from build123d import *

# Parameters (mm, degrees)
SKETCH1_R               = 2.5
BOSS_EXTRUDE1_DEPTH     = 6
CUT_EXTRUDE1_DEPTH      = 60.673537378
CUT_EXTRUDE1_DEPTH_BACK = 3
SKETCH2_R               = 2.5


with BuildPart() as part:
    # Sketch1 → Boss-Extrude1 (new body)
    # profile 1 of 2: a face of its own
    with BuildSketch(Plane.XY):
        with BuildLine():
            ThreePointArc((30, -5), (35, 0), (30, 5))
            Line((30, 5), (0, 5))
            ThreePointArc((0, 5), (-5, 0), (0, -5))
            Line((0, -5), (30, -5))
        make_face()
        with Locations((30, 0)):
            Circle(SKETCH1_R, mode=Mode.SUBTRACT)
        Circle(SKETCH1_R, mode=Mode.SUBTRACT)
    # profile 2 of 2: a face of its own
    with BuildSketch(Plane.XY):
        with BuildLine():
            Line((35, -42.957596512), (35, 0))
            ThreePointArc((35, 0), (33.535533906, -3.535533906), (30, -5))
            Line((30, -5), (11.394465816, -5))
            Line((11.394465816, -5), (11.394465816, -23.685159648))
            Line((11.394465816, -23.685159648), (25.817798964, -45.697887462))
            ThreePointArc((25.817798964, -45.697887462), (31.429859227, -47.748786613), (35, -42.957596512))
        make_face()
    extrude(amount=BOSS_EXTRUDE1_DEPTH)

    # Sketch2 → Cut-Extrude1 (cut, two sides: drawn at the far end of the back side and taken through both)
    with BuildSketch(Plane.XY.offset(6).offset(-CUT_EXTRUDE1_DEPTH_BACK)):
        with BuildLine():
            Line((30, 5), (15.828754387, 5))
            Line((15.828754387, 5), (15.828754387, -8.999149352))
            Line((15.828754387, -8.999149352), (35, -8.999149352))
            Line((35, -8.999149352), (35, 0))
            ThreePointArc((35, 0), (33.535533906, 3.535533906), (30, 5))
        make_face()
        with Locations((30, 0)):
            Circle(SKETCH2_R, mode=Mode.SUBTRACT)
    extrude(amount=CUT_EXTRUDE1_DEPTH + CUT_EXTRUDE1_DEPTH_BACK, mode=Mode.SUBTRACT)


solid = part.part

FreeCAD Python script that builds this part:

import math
import FreeCAD as App
import Part
import Sketcher

doc = App.newDocument("Part")
body = doc.addObject("PartDesign::Body", "Body")

sketch1 = body.newObject("Sketcher::SketchObject", "Sketch")
sketch1.AttachmentSupport = (doc.getObject("XY_Plane"), [""])
sketch1.MapMode = "FlatFace"
sketch1.addGeometry([
    Part.ArcOfCircle(Part.Circle(App.Vector(30, 0, 0), App.Vector(0, 0, 1), 5), math.radians(0), math.radians(90)),
    Part.LineSegment(App.Vector(30, 5, 0), App.Vector(0, 5, 0)),
    Part.ArcOfCircle(Part.Circle(App.Vector(0, 0, 0), App.Vector(0, 0, 1), 5), math.radians(90), math.radians(270)),
    Part.LineSegment(App.Vector(0, -5, 0), App.Vector(11.394466, -5, 0)),
    Part.LineSegment(App.Vector(11.394466, -5, 0), App.Vector(11.394466, -23.68516, 0)),
    Part.LineSegment(App.Vector(11.394466, -23.68516, 0), App.Vector(25.817799, -45.697887, 0)),
    Part.ArcOfCircle(Part.Circle(App.Vector(30, -42.957597, 0), App.Vector(0, 0, 1), 5), math.radians(-146.766102), math.radians(0)),
    Part.LineSegment(App.Vector(35, -42.957597, 0), App.Vector(35, 0, 0)),
    Part.Circle(App.Vector(0, 0, 0), App.Vector(0, 0, 1), 2.5),
    Part.Circle(App.Vector(30, 0, 0), App.Vector(0, 0, 1), 2.5),
], False)
sketch1.addConstraint([
    Sketcher.Constraint("Tangent", 0, 2, 1, 1),
    Sketcher.Constraint("Tangent", 1, 2, 2, 1),
    Sketcher.Constraint("Tangent", 2, 2, 3, 1),
    Sketcher.Constraint("Coincident", 3, 2, 4, 1),
    Sketcher.Constraint("Coincident", 4, 2, 5, 1),
    Sketcher.Constraint("Tangent", 5, 2, 6, 1),
    Sketcher.Constraint("Tangent", 6, 2, 7, 1),
    Sketcher.Constraint("Tangent", 7, 2, 0, 1),
    Sketcher.Constraint("Horizontal", 1),
    Sketcher.Constraint("Horizontal", 3),
    Sketcher.Constraint("Vertical", 4),
    Sketcher.Constraint("Vertical", 7),
    Sketcher.Constraint("Coincident", 2, 3, -1, 1),
    Sketcher.Constraint("Coincident", 8, 3, -1, 1),
    Sketcher.Constraint("Coincident", 9, 3, 0, 3),
    Sketcher.Constraint("Equal", 0, 2),
    Sketcher.Constraint("Equal", 2, 6),
    Sketcher.Constraint("Equal", 8, 9),
    Sketcher.Constraint("Diameter", 8, 5.0),
    Sketcher.Constraint("Radius", 0, 5.0),
    Sketcher.Constraint("DistanceX", 1, 2, 1, 1, 30.0),
    Sketcher.Constraint("DistanceY", 4, 2, 4, 1, 18.68516),
    Sketcher.Constraint("DistanceX", -1, 1, 5, 2, 25.817799),
    Sketcher.Constraint("DistanceX", 3, 1, 3, 2, 11.394466),
])
pad1 = body.newObject("PartDesign::Pad", "Pad")
pad1.Profile = sketch1
pad1.Length = 6

sketch2 = body.newObject("Sketcher::SketchObject", "Sketch001")
sketch2.AttachmentSupport = (doc.getObject("XY_Plane"), [""])
sketch2.MapMode = "FlatFace"
sketch2.AttachmentOffset = App.Placement(App.Vector(0, 0, 6), App.Rotation())
sketch2.addGeometry([
    Part.LineSegment(App.Vector(30, 5, 0), App.Vector(15.828754, 5, 0)),
    Part.LineSegment(App.Vector(15.828754, 5, 0), App.Vector(15.828754, -8.999149, 0)),
    Part.LineSegment(App.Vector(15.828754, -8.999149, 0), App.Vector(35, -8.999149, 0)),
    Part.LineSegment(App.Vector(35, -8.999149, 0), App.Vector(35, 0, 0)),
    Part.ArcOfCircle(Part.Circle(App.Vector(30, 0, 0), App.Vector(0, 0, 1), 5), math.radians(0), math.radians(90)),
    Part.Circle(App.Vector(30, 0, 0), App.Vector(0, 0, 1), 2.5),
], False)
sketch2.addConstraint([
    Sketcher.Constraint("Coincident", 0, 2, 1, 1),
    Sketcher.Constraint("Coincident", 1, 2, 2, 1),
    Sketcher.Constraint("Coincident", 2, 2, 3, 1),
    Sketcher.Constraint("Tangent", 3, 2, 4, 1),
    Sketcher.Constraint("Tangent", 4, 2, 0, 1),
    Sketcher.Constraint("Horizontal", 0),
    Sketcher.Constraint("Vertical", 1),
    Sketcher.Constraint("Horizontal", 2),
    Sketcher.Constraint("Vertical", 3),
    Sketcher.Constraint("Coincident", 5, 3, 4, 3),
    Sketcher.Constraint("PointOnObject", 4, 3, -1),
    Sketcher.Constraint("Diameter", 5, 5.0),
    Sketcher.Constraint("Radius", 4, 5.0),
    Sketcher.Constraint("DistanceX", -1, 1, 4, 3, 30.0),
    Sketcher.Constraint("DistanceY", 1, 2, 1, 1, 13.999149),
    Sketcher.Constraint("DistanceX", 0, 2, 0, 1, 14.171246),
])
pocket1 = body.newObject("PartDesign::Pocket", "Pocket")
pocket1.Profile = sketch2
pocket1.Type = "TwoLengths"
pocket1.Length = 60.673537
pocket1.Length2 = 3
pocket1.Reversed = True

doc.recompute()
